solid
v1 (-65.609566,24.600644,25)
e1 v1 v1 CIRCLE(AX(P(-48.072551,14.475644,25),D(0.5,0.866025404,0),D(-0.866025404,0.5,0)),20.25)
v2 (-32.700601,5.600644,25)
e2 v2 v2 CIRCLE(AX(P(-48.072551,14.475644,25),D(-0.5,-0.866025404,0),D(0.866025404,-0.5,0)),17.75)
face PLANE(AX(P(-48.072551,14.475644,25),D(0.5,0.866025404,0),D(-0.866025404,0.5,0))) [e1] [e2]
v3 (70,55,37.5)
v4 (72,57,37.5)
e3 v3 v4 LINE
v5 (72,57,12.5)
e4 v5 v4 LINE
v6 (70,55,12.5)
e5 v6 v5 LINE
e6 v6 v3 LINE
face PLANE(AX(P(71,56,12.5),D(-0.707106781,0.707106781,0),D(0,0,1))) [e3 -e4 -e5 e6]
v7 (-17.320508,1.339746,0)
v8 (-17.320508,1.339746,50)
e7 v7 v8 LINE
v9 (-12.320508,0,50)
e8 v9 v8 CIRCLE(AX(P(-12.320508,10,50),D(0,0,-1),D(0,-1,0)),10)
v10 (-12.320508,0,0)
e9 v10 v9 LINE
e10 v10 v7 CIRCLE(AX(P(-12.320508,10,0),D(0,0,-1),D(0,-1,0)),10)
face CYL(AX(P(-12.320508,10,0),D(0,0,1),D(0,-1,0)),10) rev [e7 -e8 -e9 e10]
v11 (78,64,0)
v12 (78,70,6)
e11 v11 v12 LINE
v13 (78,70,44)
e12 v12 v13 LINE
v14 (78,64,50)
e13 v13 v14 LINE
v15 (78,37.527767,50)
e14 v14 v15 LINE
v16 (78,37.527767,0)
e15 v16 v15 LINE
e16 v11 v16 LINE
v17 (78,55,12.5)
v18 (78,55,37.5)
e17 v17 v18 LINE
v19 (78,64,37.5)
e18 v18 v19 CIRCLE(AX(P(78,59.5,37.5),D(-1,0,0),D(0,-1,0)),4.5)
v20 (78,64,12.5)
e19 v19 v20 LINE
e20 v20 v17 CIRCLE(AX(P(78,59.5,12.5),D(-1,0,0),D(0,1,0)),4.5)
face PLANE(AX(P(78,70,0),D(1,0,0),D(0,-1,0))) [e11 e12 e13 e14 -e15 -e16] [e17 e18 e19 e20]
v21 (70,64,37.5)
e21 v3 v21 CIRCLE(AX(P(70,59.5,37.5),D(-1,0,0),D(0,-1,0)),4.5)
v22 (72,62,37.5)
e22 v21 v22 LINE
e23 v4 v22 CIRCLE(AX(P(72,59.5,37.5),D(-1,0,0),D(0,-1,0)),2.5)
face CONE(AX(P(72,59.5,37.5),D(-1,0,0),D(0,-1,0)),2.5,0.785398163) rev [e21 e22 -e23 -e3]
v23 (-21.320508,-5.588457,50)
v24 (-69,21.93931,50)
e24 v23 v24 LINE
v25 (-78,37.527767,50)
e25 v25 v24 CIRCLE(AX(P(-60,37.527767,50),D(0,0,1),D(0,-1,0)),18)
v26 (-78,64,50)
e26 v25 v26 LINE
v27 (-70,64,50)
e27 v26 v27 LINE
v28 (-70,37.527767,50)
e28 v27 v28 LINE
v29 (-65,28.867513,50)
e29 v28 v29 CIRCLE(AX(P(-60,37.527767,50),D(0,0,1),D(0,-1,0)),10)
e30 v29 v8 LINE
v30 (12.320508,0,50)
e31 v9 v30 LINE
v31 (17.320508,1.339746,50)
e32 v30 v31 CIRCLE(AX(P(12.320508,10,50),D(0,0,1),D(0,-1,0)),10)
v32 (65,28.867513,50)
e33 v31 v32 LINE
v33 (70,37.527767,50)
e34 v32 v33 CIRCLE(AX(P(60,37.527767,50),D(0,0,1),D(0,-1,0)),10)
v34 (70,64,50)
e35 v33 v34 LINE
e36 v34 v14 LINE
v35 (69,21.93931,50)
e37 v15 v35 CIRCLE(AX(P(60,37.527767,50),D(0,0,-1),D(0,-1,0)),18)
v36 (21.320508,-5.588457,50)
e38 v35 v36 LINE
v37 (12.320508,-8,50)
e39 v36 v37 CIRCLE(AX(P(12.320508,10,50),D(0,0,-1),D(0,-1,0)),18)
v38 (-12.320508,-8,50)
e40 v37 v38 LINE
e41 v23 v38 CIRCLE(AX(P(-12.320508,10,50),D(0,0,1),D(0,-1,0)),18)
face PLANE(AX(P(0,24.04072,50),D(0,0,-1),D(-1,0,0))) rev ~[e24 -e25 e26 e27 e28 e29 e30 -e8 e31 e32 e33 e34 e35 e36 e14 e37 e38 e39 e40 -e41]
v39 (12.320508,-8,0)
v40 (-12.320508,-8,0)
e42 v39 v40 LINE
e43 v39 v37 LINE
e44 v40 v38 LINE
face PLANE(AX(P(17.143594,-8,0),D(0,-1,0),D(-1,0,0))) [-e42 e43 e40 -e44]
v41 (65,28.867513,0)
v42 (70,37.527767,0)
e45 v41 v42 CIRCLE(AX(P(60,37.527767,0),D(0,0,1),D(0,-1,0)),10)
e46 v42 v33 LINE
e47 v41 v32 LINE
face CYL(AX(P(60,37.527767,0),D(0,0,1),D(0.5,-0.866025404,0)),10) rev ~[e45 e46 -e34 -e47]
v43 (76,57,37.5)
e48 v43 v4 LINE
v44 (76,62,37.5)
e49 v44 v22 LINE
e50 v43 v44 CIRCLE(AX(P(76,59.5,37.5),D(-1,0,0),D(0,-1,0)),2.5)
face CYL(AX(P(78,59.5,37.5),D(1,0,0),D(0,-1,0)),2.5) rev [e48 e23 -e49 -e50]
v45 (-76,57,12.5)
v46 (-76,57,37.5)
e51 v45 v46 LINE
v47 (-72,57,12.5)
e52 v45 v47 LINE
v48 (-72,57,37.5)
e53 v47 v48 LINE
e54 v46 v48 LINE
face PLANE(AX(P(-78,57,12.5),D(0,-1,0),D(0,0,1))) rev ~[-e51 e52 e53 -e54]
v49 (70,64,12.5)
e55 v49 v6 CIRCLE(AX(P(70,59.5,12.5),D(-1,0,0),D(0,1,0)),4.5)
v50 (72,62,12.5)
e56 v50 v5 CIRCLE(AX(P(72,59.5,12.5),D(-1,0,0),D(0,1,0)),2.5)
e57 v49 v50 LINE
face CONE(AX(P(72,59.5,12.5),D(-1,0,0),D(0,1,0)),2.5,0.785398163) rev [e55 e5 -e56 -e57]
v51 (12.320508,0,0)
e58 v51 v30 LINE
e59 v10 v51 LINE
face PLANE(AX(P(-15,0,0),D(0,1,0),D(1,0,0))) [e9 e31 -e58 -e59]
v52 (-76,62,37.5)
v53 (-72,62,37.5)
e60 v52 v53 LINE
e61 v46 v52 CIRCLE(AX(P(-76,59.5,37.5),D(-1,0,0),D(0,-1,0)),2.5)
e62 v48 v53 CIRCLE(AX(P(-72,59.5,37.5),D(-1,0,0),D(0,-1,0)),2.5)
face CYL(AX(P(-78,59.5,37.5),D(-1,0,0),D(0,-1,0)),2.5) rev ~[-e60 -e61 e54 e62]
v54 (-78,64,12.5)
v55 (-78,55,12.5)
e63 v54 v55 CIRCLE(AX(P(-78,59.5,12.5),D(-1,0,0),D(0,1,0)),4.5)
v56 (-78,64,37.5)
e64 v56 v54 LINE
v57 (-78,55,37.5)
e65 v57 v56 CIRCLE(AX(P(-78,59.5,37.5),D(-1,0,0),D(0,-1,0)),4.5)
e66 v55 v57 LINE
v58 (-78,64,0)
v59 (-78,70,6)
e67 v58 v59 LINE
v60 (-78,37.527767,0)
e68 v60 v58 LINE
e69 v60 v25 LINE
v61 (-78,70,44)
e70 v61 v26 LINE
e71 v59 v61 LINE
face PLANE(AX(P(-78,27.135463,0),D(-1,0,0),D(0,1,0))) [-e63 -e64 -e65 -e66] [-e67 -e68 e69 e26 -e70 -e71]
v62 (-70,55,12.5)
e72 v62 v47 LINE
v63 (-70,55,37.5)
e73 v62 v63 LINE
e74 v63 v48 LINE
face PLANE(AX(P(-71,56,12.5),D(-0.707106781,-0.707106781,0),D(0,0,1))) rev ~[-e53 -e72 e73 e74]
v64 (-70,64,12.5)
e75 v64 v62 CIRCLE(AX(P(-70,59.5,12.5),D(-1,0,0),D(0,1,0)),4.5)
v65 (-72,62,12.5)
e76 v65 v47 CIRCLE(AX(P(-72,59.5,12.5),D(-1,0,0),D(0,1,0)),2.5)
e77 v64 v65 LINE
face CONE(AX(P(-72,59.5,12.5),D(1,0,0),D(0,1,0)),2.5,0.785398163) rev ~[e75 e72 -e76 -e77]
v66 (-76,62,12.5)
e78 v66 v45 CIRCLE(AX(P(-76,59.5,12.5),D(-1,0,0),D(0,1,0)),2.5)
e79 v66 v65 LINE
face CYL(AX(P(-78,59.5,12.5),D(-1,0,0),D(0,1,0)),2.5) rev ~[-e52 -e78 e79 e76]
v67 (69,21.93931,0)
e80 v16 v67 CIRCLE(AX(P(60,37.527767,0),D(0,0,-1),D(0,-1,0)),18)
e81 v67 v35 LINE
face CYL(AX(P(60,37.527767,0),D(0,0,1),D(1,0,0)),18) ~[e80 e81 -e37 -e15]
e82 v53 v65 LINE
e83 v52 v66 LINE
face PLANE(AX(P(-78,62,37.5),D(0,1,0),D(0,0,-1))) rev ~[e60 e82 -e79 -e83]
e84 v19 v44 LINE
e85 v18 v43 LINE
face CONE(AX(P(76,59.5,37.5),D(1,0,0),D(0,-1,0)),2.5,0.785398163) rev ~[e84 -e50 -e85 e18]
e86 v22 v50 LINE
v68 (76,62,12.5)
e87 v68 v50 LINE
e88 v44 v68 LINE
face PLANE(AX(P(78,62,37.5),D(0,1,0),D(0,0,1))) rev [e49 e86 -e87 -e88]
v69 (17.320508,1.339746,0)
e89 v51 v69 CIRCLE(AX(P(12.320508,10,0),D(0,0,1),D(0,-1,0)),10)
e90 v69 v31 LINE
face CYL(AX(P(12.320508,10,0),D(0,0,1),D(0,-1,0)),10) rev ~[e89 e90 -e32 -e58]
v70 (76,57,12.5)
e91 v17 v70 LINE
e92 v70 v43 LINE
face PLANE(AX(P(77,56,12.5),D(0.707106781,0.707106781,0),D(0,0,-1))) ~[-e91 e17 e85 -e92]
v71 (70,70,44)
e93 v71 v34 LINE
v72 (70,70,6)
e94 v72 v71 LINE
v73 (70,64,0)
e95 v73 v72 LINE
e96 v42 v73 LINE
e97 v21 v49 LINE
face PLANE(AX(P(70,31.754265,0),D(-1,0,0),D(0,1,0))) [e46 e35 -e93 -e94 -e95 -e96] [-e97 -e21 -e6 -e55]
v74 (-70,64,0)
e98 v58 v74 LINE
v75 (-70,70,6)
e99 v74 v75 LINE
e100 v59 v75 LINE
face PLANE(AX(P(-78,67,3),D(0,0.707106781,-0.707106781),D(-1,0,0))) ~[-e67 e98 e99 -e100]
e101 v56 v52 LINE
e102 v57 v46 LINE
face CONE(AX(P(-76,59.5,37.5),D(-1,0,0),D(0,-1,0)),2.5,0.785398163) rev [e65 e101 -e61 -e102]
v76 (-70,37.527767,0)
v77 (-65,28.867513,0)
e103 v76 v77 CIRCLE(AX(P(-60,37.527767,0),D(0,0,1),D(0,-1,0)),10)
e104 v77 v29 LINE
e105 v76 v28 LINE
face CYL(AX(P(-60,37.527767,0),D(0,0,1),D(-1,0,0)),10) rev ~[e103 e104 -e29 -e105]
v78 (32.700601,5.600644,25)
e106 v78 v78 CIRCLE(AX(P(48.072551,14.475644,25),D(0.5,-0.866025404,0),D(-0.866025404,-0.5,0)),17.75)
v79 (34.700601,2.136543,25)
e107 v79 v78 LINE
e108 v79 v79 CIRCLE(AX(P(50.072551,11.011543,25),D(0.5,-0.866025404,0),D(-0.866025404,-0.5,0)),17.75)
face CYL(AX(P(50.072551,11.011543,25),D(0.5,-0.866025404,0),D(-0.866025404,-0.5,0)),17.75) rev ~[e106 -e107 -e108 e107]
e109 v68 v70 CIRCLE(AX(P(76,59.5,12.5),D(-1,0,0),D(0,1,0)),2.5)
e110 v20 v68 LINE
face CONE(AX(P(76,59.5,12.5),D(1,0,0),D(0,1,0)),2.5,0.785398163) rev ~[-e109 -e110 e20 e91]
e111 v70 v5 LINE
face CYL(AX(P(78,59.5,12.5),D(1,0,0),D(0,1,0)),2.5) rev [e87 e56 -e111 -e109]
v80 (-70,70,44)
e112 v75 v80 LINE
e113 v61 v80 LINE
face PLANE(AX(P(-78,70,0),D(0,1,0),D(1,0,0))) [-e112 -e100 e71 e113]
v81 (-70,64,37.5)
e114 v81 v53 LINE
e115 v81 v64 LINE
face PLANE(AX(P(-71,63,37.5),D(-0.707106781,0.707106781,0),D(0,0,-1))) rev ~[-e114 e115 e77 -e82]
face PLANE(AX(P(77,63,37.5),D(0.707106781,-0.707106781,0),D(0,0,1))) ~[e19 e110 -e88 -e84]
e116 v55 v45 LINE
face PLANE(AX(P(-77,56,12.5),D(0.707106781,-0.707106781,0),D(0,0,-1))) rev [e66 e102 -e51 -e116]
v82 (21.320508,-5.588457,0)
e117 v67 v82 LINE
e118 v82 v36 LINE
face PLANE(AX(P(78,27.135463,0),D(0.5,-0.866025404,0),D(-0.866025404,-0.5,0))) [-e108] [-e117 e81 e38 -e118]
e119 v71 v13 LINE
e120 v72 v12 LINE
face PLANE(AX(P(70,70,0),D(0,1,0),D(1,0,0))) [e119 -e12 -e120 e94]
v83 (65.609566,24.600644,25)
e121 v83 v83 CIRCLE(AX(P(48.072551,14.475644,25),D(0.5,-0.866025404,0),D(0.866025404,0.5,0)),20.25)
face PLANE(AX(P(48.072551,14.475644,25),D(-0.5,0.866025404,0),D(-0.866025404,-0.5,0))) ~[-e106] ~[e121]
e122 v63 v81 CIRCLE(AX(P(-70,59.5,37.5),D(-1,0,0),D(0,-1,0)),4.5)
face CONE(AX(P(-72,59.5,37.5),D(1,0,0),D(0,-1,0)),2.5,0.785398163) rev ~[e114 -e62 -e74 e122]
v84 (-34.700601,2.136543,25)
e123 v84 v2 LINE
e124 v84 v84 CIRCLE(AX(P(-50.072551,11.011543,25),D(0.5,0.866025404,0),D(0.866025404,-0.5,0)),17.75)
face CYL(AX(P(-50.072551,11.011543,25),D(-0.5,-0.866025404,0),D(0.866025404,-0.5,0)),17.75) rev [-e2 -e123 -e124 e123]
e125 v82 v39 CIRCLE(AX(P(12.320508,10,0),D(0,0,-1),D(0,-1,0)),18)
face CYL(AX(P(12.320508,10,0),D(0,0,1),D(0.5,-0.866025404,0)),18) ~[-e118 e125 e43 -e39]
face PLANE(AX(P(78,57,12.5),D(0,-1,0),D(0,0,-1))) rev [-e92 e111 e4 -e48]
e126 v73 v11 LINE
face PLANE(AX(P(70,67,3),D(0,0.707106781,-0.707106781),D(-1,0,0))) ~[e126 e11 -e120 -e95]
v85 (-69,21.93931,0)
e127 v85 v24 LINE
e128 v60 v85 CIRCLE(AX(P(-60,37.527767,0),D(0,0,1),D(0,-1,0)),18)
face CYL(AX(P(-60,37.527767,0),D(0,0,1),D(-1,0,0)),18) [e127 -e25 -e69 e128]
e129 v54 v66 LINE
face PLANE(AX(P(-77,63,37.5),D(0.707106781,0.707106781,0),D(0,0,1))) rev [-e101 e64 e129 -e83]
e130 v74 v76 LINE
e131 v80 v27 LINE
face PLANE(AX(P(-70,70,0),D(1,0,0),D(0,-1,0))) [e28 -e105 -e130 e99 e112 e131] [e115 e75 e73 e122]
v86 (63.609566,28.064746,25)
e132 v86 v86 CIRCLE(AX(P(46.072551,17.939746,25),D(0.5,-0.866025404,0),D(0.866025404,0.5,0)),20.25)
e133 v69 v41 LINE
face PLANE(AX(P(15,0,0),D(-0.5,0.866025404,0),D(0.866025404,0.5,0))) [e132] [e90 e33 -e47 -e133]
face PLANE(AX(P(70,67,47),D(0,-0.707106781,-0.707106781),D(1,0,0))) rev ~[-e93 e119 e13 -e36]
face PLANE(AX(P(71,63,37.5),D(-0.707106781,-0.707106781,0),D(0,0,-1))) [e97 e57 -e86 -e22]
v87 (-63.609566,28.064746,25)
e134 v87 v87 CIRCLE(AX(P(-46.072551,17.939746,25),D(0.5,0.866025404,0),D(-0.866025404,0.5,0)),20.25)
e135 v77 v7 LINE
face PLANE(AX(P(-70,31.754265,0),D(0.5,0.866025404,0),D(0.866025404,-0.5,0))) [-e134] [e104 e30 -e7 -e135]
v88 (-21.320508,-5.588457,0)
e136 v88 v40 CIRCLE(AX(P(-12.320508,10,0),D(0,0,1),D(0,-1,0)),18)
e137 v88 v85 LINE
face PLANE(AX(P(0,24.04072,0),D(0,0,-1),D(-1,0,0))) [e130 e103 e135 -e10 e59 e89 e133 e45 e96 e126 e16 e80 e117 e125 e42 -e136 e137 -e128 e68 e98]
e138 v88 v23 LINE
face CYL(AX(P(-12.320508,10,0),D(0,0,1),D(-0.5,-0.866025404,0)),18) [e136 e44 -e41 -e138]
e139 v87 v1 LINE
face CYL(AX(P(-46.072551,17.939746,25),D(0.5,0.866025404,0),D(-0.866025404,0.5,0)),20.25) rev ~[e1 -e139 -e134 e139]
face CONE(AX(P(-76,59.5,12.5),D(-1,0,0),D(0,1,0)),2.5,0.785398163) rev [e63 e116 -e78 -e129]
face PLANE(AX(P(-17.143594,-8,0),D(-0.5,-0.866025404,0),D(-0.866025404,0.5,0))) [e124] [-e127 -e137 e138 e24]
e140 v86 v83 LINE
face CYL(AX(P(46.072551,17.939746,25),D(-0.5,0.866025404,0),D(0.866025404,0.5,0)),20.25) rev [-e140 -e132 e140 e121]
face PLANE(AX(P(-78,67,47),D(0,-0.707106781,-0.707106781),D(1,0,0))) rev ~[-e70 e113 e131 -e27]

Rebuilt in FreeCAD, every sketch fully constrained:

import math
import FreeCAD as App
import Part
import Sketcher
from FreeCAD import Vector
Q = App.Units.Quantity


def edges_at(feature, points):
    """Names of the edges that pass closest to the given points."""
    edges = feature.Shape.Edges
    near = lambda p: min(range(len(edges)), key=lambda i: edges[i].distToShape(Part.Vertex(*p))[0])
    return sorted({f"Edge{near(p) + 1}" for p in points})


def add_polygon(sketch, points):
    """Adds a closed chain of lines whose ends are joined by coincident constraints."""
    first, n = sketch.GeometryCount, len(points)
    for a, b in zip(points, points[1:] + points[:1]):
        sketch.addGeometry(Part.LineSegment(App.Vector(*a, 0), App.Vector(*b, 0)), False)
    for i in range(n):
        sketch.addConstraint(Sketcher.Constraint("Coincident", first + i, 2, first + (i + 1) % n, 1))

doc = App.newDocument("Part")
params = doc.addObject("Spreadsheet::Sheet", "Params")
for row, (alias, value) in enumerate([
    ("sketch1_width", "30 mm"),
    ("sketch1_width2", "8 mm"),
    ("pad1_length", "50 mm"),
    ("fillet_radius", "10 mm"),
    ("fillet2_radius", "18 mm"),
    ("sketch2_radius", "2.5 mm"),
    ("sketch2_height", "25 mm"),
    ("pocket1_length", "8 mm"),
    ("chamfer_size", "2 mm"),
    ("chamfer2_size", "6 mm"),
    ("sketch3_diameter", "35.5 mm"),
    ("pocket2_length", "8 mm"),
    ("sketch4_diameter", "40.5 mm"),
    ("pocket3_length", "4 mm"),
    ("chamfer3_size", "2 mm"),
    ("chamfer4_size", "6 mm"),
], start=1):
    params.set(f"A{row}", alias)
    params.set(f"B{row}", "=" + value)
    params.setAlias(f"B{row}", alias)

body = doc.addObject("PartDesign::Body", "Body")

# Sketch on XY plane
sketch1 = body.newObject("Sketcher::SketchObject", "Sketch")
sketch1.AttachmentSupport = (doc.getObject("XY_Plane"), [""])
sketch1.MapMode = "FlatFace"
add_polygon(sketch1, [(15, 0), (-15, 0), (-70, 32), (-70, 70), (-78, 70), (-78, 27), (-17, -8), (17, -8), (78, 27), (78, 70), (70, 70), (70, 32)])  # lines 0-11
sketch1.addConstraint(Sketcher.Constraint("Horizontal", 0))
sketch1.addConstraint(Sketcher.Constraint("Vertical", 2))
sketch1.addConstraint(Sketcher.Constraint("Horizontal", 3))
sketch1.addConstraint(Sketcher.Constraint("Vertical", 4))
sketch1.addConstraint(Sketcher.Constraint("Horizontal", 6))
sketch1.addConstraint(Sketcher.Constraint("Vertical", 8))
sketch1.addConstraint(Sketcher.Constraint("Horizontal", 9))
sketch1.addConstraint(Sketcher.Constraint("Vertical", 10))
sketch1.addConstraint(Sketcher.Constraint("Symmetric", 0, 2, 11, 2, -1, 1))
sketch1.addConstraint(Sketcher.Constraint("Symmetric", 4, 2, 7, 2, -2))
sketch1.addConstraint(Sketcher.Constraint("Symmetric", 2, 2, 9, 2, -2))
sketch1.addConstraint(Sketcher.Constraint("Parallel", 1, 5))
sketch1.addConstraint(Sketcher.Constraint("Parallel", 7, 11))
sketch1.addConstraint(Sketcher.Constraint("Horizontal", 1, 2, 10, 2))
sketch1.addConstraint(Sketcher.Constraint("DistanceX", 0, 2, 0, 1, Q("30 mm")))
sketch1.addConstraint(Sketcher.Constraint("DistanceX", 3, 2, 3, 1, Q("8 mm")))
sketch1.addConstraint(Sketcher.Constraint("Angle", 1, Q("150 deg")))
sketch1.addConstraint(Sketcher.Constraint("DistanceX", 1, 2, -1, 1, Q("70 mm")))
sketch1.addConstraint(Sketcher.Constraint("DistanceY", -1, 1, 2, 2, Q("70 mm")))
sketch1.addConstraint(Sketcher.Constraint("DistanceY", 5, 2, -1, 1, Q("8 mm")))
sketch1.addConstraint(Sketcher.Constraint("DistanceX", 6, 1, 6, 2, Q("34.287187 mm")))
sketch1.setExpression("Constraints[26]", "Params.sketch1_width")
sketch1.setExpression("Constraints[27]", "Params.sketch1_width2")
pad1 = body.newObject("PartDesign::Pad", "Pad")
pad1.Profile = sketch1
pad1.setExpression("Length", "Params.pad1_length")
doc.recompute()

fillet = body.newObject("PartDesign::Fillet", "Fillet")
fillet.Base = (pad1, edges_at(pad1, [
    (-15, 0, 25),
    (15, 0, 25),
    (70, 31.754, 25),
    (-70, 31.754, 25),
]))
fillet.setExpression("Radius", "Params.fillet_radius")
doc.recompute()

fillet2 = body.newObject("PartDesign::Fillet", "Fillet001")
fillet2.Base = (fillet, edges_at(fillet, [
    (78, 27.135, 25),
    (17.144, -8, 25),
    (-17.144, -8, 25),
    (-78, 27.135, 25),
]))
fillet2.setExpression("Radius", "Params.fillet2_radius")

# Sketch on YZ plane
sketch2 = body.newObject("Sketcher::SketchObject", "Sketch001")
sketch2.AttachmentSupport = (doc.getObject("YZ_Plane"), [""])
sketch2.MapMode = "FlatFace"
sketch2.AttachmentOffset = App.Placement(Vector(0, 0, -78), App.Rotation())
sketch2.addGeometry(Part.LineSegment(Vector(57, 37.5, 0), Vector(57, 12.5, 0)), False)
sketch2.addGeometry(Part.ArcOfCircle(Part.Circle(Vector(59.5, 12.5, 0), Vector(0, 0, 1), 2.5), math.radians(180), math.radians(360)), False)
sketch2.addGeometry(Part.LineSegment(Vector(62, 12.5, 0), Vector(62, 37.5, 0)), False)
sketch2.addGeometry(Part.ArcOfCircle(Part.Circle(Vector(59.5, 37.5, 0), Vector(0, 0, 1), 2.5), math.radians(0), math.radians(180)), False)
sketch2.addConstraint(Sketcher.Constraint("Tangent", 0, 2, 1, 1))
sketch2.addConstraint(Sketcher.Constraint("Tangent", 1, 2, 2, 1))
sketch2.addConstraint(Sketcher.Constraint("Tangent", 2, 2, 3, 1))
sketch2.addConstraint(Sketcher.Constraint("Tangent", 3, 2, 0, 1))
sketch2.addConstraint(Sketcher.Constraint("Vertical", 0))
sketch2.addConstraint(Sketcher.Constraint("Vertical", 2))
sketch2.addConstraint(Sketcher.Constraint("Radius", 1, Q("2.5 mm")))
sketch2.addConstraint(Sketcher.Constraint("DistanceY", 0, 2, 0, 1, Q("25 mm")))
sketch2.addConstraint(Sketcher.Constraint("DistanceX", -1, 1, 0, 2, Q("57 mm")))
sketch2.addConstraint(Sketcher.Constraint("DistanceY", -1, 1, 1, 3, Q("12.5 mm")))
sketch2.setExpression("Constraints[6]", "Params.sketch2_radius")
sketch2.setExpression("Constraints[7]", "Params.sketch2_height")
pocket1 = body.newObject("PartDesign::Pocket", "Pocket")
pocket1.Profile = sketch2
pocket1.setExpression("Length", "Params.pocket1_length")
pocket1.Reversed = True
doc.recompute()

chamfer = body.newObject("PartDesign::Chamfer", "Chamfer")
chamfer.Base = (pocket1, edges_at(pocket1, [
    (-70, 59.5, 10),
    (-78, 59.5, 10),
    (-70, 62, 25),
    (-78, 62, 25),
    (-70, 59.5, 40),
    (-78, 59.5, 40),
    (-70, 57, 25),
    (-78, 57, 25),
]))
chamfer.setExpression("Size", "Params.chamfer_size")
doc.recompute()

chamfer2 = body.newObject("PartDesign::Chamfer", "Chamfer001")
chamfer2.Base = (chamfer, edges_at(chamfer, [(-74, 70, 50), (-74, 70, 0)]))
chamfer2.setExpression("Size", "Params.chamfer2_size")

# Sketch on an angled plane
sketch3 = body.newObject("Sketcher::SketchObject", "Sketch002")
sketch3.Placement = App.Placement(Vector(-27.350056, -2.107296, 0), App.Rotation(Vector(0, 0, 1), Vector(0.866025404, -0.5, 0), Vector(0.5, 0.866025404, 0), "ZXY"))
sketch3.addGeometry(Part.Circle(Vector(25, -26, 0), Vector(0, 0, 1), 18), False)
sketch3.addConstraint(Sketcher.Constraint("Diameter", 0, Q("35.5 mm")))
sketch3.addConstraint(Sketcher.Constraint("DistanceX", -1, 1, 0, 3, Q("25 mm")))
sketch3.addConstraint(Sketcher.Constraint("DistanceY", 0, 3, -1, 1, Q("26.237678 mm")))
sketch3.setExpression("Constraints[0]", "Params.sketch3_diameter")
pocket2 = body.newObject("PartDesign::Pocket", "Pocket001")
pocket2.Profile = sketch3
pocket2.setExpression("Length", "Params.pocket2_length")
pocket2.Reversed = True

# Sketch on an angled plane
sketch4 = body.newObject("Sketcher::SketchObject", "Sketch003")
sketch4.Placement = App.Placement(Vector(-3.75, -6.495191, 0), App.Rotation(Vector(0, 0, -1), Vector(-0.866025404, 0.5, 0), Vector(0.5, 0.866025404, 0), "ZXY"))
sketch4.addGeometry(Part.Circle(Vector(-25, 49, 0), Vector(0, 0, 1), 20), False)
sketch4.addConstraint(Sketcher.Constraint("Diameter", 0, Q("40.5 mm")))
sketch4.addConstraint(Sketcher.Constraint("DistanceX", 0, 3, -1, 1, Q("25 mm")))
sketch4.addConstraint(Sketcher.Constraint("DistanceY", -1, 1, 0, 3, Q("48.869873 mm")))
sketch4.setExpression("Constraints[0]", "Params.sketch4_diameter")
pocket3 = body.newObject("PartDesign::Pocket", "Pocket002")
pocket3.Profile = sketch4
pocket3.setExpression("Length", "Params.pocket3_length")
doc.recompute()

mirrored = body.newObject("PartDesign::Mirrored", "Mirrored")
mirrored.Originals = [pocket1, pocket2, pocket3]
mirrored.MirrorPlane = (doc.getObject("YZ_Plane"), [""])
body.Tip = mirrored
doc.recompute()

chamfer3 = body.newObject("PartDesign::Chamfer", "Chamfer002")
chamfer3.Base = (mirrored, edges_at(mirrored, [
    (70, 59.5, 10),
    (78, 59.5, 10),
    (70, 62, 25),
    (78, 62, 25),
    (70, 59.5, 40),
    (78, 59.5, 40),
    (70, 57, 25),
    (78, 57, 25),
]))
chamfer3.setExpression("Size", "Params.chamfer3_size")
doc.recompute()

chamfer4 = body.newObject("PartDesign::Chamfer", "Chamfer003")
chamfer4.Base = (chamfer3, edges_at(chamfer3, [(74, 70, 50), (74, 70, 0)]))
chamfer4.setExpression("Size", "Params.chamfer4_size")

doc.recompute()
